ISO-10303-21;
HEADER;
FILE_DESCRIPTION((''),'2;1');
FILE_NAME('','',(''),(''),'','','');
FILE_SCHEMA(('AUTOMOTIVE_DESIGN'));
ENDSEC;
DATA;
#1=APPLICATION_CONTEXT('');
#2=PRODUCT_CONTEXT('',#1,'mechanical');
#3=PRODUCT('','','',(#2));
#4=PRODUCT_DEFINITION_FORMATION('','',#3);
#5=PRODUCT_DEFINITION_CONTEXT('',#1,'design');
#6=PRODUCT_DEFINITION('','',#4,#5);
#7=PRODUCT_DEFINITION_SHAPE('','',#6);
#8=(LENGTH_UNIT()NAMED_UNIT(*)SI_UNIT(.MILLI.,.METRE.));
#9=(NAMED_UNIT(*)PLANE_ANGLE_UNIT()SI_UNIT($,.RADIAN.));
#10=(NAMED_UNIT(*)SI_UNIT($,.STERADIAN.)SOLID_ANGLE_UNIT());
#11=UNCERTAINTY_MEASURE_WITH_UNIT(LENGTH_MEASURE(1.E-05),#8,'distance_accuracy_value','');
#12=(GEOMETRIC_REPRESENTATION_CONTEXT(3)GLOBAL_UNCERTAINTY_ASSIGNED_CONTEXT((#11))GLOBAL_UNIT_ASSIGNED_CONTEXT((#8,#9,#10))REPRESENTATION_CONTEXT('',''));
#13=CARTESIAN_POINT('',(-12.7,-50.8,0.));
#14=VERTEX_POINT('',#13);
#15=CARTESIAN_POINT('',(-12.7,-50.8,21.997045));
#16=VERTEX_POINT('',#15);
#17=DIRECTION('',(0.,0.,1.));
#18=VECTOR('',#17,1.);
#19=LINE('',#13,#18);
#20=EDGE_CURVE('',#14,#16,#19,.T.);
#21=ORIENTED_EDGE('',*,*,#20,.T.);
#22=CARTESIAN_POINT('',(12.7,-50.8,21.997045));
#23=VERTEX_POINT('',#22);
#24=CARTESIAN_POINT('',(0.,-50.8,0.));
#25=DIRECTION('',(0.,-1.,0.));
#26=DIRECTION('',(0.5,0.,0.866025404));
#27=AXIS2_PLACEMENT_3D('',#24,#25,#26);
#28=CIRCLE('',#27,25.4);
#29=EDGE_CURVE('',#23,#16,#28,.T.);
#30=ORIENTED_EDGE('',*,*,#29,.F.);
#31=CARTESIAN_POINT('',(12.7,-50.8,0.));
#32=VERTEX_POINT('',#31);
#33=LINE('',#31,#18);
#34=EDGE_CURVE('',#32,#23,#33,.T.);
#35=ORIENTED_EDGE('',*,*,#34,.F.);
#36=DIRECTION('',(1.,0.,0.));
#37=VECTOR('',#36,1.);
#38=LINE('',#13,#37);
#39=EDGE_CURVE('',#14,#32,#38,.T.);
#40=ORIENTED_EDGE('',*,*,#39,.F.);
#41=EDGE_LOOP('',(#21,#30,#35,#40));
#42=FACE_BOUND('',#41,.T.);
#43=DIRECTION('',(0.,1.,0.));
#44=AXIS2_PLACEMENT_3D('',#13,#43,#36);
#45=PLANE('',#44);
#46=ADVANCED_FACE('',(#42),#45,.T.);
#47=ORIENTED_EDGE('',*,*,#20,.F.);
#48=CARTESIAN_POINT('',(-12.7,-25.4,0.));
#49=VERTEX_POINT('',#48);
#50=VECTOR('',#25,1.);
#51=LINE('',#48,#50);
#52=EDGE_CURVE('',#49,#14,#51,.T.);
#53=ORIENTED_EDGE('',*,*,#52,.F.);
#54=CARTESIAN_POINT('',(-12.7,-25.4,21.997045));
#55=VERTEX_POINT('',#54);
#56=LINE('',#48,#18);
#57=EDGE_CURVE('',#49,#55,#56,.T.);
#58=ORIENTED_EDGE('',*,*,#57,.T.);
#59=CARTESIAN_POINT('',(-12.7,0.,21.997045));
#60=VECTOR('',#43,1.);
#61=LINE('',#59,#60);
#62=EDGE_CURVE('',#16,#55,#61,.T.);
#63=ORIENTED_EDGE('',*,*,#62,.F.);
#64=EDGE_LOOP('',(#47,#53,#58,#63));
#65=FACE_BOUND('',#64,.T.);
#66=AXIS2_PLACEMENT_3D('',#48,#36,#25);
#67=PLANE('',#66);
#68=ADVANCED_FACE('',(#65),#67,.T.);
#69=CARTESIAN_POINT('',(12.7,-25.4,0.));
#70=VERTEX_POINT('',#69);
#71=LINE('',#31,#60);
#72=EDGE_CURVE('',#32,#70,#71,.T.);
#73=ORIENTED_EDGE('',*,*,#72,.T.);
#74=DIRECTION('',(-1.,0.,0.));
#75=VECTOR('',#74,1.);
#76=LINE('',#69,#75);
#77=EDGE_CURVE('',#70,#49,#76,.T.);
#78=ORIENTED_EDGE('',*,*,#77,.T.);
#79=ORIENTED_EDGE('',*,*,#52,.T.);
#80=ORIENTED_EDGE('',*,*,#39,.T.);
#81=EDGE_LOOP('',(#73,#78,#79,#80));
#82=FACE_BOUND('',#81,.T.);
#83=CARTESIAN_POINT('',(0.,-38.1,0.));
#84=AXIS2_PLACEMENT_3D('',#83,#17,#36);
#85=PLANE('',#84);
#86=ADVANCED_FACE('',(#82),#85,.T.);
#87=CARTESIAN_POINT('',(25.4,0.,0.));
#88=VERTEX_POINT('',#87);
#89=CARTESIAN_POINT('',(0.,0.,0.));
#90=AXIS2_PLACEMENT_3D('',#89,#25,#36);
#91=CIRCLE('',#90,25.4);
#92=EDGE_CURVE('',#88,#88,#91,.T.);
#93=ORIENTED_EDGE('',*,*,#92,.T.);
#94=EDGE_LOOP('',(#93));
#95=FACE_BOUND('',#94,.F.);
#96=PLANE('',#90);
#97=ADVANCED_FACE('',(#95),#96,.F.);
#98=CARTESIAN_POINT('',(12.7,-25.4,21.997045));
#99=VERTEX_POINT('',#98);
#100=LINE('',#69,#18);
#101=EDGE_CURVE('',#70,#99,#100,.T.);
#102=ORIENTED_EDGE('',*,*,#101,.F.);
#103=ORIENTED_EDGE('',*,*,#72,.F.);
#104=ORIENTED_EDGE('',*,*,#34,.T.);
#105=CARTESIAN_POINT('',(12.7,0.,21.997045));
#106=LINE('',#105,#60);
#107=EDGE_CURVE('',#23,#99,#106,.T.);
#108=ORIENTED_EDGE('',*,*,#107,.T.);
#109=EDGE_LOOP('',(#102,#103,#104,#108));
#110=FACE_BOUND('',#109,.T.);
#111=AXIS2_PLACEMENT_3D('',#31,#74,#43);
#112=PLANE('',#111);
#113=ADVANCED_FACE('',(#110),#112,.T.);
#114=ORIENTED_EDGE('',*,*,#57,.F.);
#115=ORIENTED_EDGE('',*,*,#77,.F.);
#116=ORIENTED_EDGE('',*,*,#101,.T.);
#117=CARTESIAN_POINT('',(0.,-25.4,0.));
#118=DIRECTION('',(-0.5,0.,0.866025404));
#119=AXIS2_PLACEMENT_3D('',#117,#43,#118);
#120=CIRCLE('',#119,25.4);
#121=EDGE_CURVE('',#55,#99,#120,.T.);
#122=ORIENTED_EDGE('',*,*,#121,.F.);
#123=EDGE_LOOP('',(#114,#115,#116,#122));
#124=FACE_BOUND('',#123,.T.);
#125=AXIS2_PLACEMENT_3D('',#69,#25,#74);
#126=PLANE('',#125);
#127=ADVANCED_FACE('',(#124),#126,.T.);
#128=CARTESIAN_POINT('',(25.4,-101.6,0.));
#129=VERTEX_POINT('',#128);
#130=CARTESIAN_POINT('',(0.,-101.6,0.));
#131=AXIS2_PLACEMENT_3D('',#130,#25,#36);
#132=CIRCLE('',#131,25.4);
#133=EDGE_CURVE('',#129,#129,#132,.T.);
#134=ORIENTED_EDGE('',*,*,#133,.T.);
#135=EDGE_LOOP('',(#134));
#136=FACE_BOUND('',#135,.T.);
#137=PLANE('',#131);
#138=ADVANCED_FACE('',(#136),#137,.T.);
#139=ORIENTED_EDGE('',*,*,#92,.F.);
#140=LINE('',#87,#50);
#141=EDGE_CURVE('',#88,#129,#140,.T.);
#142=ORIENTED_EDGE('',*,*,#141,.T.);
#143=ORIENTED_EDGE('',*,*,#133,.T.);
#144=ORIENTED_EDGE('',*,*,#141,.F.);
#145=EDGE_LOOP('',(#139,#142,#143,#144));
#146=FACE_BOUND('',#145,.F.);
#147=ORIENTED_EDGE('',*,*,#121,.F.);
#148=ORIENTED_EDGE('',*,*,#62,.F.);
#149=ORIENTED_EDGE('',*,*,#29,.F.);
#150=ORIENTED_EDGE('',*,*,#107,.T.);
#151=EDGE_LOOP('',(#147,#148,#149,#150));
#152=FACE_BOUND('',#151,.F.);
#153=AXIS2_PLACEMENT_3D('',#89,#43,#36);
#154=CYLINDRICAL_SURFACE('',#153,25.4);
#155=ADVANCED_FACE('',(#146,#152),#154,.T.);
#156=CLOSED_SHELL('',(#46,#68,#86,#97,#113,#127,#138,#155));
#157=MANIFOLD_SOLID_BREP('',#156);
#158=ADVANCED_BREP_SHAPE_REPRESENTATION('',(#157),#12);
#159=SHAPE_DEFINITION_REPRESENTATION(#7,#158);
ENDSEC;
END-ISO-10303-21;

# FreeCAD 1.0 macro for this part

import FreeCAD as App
import Part
import Sketcher

V = App.Vector
Q = App.Units.Quantity


def add_polygon(sketch, points):
    """Adds a closed chain of lines whose ends are joined by coincident constraints."""
    first, n = sketch.GeometryCount, len(points)
    for a, b in zip(points, points[1:] + points[:1]):
        sketch.addGeometry(Part.LineSegment(App.Vector(*a, 0), App.Vector(*b, 0)), False)
    for i in range(n):
        sketch.addConstraint(Sketcher.Constraint("Coincident", first + i, 2, first + (i + 1) % n, 1))

doc = App.newDocument("Part")
params = doc.addObject("Spreadsheet::Sheet", "Params")
for row, (alias, value) in enumerate([
    ("sketch1_diameter", "2 in"),
    ("pad1_length", "4 in"),
    ("sketch2_width", "1 in"),
    ("pocket1_length", "1 in"),
], start=1):
    params.set(f"A{row}", alias)
    params.set(f"B{row}", "=" + value)
    params.setAlias(f"B{row}", alias)

body = doc.addObject("PartDesign::Body", "Body")

sketch1 = doc.addObject("Sketcher::SketchObject", "Sketch")
body.addObject(sketch1)
sketch1.AttachmentSupport = (doc.XZ_Plane, [""])
sketch1.MapMode = "FlatFace"
sketch1.addGeometry(Part.Circle(V(0, 0, 0), V(0, 0, 1), 25), False)
sketch1.addConstraint([
    Sketcher.Constraint("Coincident", 0, 3, -1, 1),
    Sketcher.Constraint("Diameter", 0, Q("2 in")),
])
sketch1.setExpression("Constraints[1]", "Params.sketch1_diameter")
pad1 = doc.addObject("PartDesign::Pad", "Pad")
body.addObject(pad1)
pad1.Profile = sketch1
pad1.setExpression("Length", "Params.pad1_length")

sketch2 = doc.addObject("Sketcher::SketchObject", "Sketch001")
body.addObject(sketch2)
sketch2.AttachmentSupport = (doc.XY_Plane, [""])
sketch2.MapMode = "FlatFace"
add_polygon(sketch2, [(-13, -51), (13, -51), (13, -25), (-13, -25)])
sketch2.addConstraint([
    Sketcher.Constraint("Horizontal", 0),
    Sketcher.Constraint("Vertical", 1),
    Sketcher.Constraint("Horizontal", 2),
    Sketcher.Constraint("Vertical", 3),
    Sketcher.Constraint("Equal", 2, 1),
    Sketcher.Constraint("DistanceX", 0, 1, 0, 2, Q("1 in")),
    Sketcher.Constraint("DistanceY", 0, 2, -1, 1, Q("2 in")),
    Sketcher.Constraint("DistanceX", -1, 1, 0, 2, Q("0.5 in")),
])
sketch2.setExpression("Constraints[9]", "Params.sketch2_width")
pocket1 = doc.addObject("PartDesign::Pocket", "Pocket")
body.addObject(pocket1)
pocket1.Profile = sketch2
pocket1.setExpression("Length", "Params.pocket1_length")
pocket1.Reversed = True

doc.recompute()
